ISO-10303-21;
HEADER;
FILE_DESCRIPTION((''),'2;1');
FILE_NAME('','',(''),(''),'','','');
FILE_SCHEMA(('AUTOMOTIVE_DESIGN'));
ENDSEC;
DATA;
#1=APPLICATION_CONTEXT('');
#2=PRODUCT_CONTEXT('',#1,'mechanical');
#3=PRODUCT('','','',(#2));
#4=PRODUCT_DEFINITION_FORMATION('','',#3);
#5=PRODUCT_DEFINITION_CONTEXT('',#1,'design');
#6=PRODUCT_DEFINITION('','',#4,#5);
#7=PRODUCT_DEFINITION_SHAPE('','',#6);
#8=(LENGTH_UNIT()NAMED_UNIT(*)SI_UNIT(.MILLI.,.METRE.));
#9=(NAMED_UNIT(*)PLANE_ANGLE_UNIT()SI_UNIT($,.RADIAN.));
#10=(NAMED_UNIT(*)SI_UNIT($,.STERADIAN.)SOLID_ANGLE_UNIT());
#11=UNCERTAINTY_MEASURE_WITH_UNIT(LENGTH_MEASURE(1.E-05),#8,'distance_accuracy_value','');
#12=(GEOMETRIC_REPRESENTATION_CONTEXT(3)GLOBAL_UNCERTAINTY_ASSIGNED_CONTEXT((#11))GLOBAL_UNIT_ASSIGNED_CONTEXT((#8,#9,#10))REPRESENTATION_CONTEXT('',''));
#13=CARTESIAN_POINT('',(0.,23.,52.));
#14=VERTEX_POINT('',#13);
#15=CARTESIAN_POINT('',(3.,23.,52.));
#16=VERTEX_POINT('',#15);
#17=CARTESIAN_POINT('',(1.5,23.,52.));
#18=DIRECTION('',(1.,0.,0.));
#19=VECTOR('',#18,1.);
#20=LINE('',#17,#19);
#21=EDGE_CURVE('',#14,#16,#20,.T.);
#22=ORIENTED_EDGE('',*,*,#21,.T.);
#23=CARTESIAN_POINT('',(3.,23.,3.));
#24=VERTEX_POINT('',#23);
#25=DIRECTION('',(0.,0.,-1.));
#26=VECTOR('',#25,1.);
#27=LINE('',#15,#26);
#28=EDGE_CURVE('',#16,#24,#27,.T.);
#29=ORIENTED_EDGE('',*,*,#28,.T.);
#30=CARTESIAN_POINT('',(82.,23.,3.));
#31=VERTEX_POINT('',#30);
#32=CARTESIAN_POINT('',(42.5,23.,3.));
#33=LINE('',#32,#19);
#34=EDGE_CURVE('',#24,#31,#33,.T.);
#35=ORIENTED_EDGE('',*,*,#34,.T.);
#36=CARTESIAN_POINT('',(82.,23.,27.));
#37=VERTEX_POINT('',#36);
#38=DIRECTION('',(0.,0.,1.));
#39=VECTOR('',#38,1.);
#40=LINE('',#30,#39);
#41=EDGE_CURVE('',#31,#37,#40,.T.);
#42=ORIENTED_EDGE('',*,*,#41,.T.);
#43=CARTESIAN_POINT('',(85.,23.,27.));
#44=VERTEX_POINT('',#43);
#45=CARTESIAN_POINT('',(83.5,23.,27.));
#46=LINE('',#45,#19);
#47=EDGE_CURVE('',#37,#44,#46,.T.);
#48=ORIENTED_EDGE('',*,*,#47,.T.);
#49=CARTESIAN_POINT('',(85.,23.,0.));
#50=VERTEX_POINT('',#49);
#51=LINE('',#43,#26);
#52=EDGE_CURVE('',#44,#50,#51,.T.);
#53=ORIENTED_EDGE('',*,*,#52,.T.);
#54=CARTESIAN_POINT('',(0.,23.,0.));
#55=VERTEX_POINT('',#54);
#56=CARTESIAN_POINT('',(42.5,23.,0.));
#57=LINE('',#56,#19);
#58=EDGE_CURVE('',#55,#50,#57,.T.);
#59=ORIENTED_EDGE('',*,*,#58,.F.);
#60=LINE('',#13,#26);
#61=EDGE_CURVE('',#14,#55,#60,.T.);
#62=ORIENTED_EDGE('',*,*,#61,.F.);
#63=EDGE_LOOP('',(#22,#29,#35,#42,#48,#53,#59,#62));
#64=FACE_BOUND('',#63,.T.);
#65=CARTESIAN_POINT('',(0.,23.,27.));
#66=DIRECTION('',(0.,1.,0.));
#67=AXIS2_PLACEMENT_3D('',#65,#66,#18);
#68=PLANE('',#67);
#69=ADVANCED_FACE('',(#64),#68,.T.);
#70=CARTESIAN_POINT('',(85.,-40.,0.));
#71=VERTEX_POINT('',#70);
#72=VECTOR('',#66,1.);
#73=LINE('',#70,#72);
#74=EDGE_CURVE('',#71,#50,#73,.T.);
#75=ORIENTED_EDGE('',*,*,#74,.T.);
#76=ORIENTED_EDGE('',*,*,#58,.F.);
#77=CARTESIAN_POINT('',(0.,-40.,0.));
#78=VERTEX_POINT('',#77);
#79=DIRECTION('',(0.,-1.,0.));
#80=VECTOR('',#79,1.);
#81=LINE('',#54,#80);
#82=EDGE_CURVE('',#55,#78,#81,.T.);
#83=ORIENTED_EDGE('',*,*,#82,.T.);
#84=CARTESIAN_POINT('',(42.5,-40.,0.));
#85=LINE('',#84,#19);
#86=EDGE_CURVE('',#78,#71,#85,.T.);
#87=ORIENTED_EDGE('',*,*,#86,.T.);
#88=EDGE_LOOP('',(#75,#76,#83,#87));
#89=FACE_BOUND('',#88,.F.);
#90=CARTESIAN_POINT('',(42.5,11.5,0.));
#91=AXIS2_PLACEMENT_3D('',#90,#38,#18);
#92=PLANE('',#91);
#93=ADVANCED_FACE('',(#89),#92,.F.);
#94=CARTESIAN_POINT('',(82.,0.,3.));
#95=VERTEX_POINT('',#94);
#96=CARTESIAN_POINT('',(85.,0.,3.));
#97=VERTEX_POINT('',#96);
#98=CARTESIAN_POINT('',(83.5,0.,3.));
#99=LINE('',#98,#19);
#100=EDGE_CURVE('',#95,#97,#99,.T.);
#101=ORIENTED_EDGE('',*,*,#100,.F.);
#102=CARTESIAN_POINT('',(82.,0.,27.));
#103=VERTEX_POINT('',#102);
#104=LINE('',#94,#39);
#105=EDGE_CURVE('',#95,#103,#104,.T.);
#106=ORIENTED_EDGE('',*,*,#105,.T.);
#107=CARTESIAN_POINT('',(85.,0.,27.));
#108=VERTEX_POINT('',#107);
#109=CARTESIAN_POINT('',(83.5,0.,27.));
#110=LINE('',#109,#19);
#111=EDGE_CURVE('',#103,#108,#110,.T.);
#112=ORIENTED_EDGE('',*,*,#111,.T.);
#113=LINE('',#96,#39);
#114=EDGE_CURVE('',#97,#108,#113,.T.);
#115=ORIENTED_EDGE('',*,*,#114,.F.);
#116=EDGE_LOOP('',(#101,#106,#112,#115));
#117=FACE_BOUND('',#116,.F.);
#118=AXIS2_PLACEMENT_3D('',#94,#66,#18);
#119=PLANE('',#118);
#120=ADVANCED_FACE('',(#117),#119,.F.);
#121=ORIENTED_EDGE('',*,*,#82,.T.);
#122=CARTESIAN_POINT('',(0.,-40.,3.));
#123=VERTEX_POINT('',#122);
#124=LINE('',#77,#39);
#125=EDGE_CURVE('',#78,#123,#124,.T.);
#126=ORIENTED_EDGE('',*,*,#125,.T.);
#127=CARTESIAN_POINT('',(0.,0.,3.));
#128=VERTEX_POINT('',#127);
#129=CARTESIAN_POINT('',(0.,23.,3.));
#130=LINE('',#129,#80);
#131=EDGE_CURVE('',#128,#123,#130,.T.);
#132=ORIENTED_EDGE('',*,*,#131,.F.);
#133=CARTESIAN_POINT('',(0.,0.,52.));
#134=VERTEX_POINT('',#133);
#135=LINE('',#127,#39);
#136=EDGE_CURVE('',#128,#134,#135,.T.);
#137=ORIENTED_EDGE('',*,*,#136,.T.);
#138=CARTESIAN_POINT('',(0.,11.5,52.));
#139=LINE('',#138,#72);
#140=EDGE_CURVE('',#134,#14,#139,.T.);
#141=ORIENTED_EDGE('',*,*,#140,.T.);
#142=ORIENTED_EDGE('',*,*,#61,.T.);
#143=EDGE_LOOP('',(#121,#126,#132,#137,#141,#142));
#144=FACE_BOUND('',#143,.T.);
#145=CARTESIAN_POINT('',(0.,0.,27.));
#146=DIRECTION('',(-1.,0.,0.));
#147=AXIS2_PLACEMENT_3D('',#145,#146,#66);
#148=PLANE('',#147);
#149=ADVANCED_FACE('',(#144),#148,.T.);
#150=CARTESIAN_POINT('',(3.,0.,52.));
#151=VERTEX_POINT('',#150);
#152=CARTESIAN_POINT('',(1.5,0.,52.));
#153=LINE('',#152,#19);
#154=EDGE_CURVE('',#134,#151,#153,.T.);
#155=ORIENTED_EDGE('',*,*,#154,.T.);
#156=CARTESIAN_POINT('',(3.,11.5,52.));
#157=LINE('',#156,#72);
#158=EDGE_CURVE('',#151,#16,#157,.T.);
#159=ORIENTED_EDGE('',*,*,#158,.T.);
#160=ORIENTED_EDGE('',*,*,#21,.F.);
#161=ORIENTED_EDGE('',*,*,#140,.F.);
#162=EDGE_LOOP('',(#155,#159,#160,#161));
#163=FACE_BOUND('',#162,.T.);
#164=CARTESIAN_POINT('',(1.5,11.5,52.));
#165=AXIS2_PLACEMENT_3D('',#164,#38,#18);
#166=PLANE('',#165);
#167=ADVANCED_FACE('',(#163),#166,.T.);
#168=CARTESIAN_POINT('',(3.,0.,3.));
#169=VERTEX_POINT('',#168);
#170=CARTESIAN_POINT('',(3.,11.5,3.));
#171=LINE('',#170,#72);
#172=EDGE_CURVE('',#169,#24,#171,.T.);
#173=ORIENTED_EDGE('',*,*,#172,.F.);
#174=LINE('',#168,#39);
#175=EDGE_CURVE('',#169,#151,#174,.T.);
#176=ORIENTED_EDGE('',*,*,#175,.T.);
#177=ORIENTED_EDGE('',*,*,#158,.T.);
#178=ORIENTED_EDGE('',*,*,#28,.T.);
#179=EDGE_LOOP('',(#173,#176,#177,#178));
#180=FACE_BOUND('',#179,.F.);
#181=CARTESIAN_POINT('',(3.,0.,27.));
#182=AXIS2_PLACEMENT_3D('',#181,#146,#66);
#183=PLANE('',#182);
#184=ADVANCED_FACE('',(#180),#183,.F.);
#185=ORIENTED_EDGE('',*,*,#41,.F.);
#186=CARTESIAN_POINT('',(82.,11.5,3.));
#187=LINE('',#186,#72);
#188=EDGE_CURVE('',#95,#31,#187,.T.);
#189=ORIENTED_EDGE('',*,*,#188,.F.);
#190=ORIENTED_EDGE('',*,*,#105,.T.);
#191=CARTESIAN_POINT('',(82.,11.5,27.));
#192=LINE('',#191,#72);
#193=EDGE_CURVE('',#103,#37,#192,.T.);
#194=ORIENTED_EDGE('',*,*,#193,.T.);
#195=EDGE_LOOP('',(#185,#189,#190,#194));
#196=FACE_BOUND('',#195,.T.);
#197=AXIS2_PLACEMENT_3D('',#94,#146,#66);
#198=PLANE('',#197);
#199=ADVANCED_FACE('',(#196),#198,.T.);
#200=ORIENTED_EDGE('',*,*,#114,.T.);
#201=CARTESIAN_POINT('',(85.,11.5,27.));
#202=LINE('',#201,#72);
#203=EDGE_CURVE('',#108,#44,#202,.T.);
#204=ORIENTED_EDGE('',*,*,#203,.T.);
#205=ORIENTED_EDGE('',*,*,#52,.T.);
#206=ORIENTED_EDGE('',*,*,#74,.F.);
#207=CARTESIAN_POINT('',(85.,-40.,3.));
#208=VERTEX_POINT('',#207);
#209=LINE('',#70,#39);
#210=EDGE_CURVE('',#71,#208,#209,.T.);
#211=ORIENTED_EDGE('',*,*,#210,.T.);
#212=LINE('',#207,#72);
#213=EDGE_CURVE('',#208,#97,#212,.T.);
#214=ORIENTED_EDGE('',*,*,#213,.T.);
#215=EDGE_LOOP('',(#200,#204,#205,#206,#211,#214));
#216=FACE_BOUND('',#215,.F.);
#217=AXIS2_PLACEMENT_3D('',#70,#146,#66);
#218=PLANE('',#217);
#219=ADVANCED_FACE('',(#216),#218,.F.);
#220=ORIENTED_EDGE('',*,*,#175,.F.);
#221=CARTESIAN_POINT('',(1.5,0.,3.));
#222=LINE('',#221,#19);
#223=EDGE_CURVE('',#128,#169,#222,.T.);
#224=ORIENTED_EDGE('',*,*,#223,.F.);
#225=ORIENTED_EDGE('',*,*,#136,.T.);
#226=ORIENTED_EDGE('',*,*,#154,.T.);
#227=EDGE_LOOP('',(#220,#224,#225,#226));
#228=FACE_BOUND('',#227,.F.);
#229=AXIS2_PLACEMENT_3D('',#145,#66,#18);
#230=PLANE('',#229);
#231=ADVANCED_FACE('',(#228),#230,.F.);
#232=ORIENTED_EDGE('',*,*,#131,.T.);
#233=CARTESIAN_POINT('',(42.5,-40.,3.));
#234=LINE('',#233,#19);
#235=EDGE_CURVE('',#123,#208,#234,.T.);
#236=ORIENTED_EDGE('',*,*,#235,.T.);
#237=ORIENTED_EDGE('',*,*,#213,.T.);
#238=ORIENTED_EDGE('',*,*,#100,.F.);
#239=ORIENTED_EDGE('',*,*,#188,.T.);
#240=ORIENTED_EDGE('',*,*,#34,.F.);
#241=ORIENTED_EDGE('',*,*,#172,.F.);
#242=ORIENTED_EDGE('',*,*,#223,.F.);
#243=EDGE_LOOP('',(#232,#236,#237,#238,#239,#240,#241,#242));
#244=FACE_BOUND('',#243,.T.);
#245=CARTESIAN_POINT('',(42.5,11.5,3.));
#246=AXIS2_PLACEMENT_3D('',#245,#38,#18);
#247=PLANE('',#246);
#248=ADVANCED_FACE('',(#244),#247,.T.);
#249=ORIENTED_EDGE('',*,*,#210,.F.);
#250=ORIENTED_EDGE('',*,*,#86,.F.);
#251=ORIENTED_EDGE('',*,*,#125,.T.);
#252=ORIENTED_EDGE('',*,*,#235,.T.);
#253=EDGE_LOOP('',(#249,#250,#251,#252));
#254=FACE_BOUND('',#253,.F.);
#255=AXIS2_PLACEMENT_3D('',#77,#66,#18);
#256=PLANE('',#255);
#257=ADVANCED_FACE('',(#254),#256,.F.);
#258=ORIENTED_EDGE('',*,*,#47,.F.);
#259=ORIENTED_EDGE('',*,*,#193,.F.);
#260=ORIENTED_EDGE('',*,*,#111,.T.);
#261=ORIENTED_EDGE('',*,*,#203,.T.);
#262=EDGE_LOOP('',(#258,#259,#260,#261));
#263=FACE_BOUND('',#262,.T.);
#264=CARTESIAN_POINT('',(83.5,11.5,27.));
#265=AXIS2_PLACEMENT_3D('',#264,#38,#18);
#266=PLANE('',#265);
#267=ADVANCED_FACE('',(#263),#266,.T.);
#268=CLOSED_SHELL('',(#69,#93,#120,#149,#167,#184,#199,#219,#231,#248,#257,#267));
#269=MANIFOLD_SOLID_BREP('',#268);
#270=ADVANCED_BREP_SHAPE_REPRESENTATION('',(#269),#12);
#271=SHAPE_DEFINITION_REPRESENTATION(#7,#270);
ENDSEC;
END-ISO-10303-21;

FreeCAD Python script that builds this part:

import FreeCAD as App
import Part
import Sketcher

V = App.Vector
Q = App.Units.Quantity

doc = App.newDocument("Part")
body = doc.addObject("PartDesign::Body", "Body")

# Sketch on XY plane
sketch1 = body.newObject("Sketcher::SketchObject", "Sketch")
sketch1.AttachmentSupport = (doc.getObject("XY_Plane"), [""])
sketch1.MapMode = "FlatFace"
sketch1.addGeometry([
    Part.LineSegment(V(0, 23, 0), V(0, -40, 0)),
    Part.LineSegment(V(0, -40, 0), V(85, -40, 0)),
    Part.LineSegment(V(85, -40, 0), V(85, 23, 0)),
    Part.LineSegment(V(85, 23, 0), V(0, 23, 0)),
], False)
sketch1.addConstraint([
    Sketcher.Constraint("Coincident", 0, 2, 1, 1),
    Sketcher.Constraint("Coincident", 1, 2, 2, 1),
    Sketcher.Constraint("Coincident", 2, 2, 3, 1),
    Sketcher.Constraint("Coincident", 3, 2, 0, 1),
    Sketcher.Constraint("Vertical", 0),
    Sketcher.Constraint("Horizontal", 1),
    Sketcher.Constraint("Vertical", 2),
    Sketcher.Constraint("Horizontal", 3),
    Sketcher.Constraint("PointOnObject", 0, 2, -2),
    Sketcher.Constraint("DistanceX", 1, 1, 1, 2, Q("85 mm")),
    Sketcher.Constraint("DistanceY", 0, 2, 0, 1, Q("63 mm")),
    Sketcher.Constraint("DistanceY", 0, 2, -1, 1, Q("40 mm")),
])
pad1 = body.newObject("PartDesign::Pad", "Pad")
pad1.Profile = sketch1
pad1.Length = 3

# Sketch on XY plane
sketch2 = body.newObject("Sketcher::SketchObject", "Sketch001")
sketch2.AttachmentSupport = (doc.getObject("XY_Plane"), [""])
sketch2.MapMode = "FlatFace"
sketch2.AttachmentOffset = App.Placement(V(0, 0, 3), App.Rotation())
sketch2.addGeometry([
    Part.LineSegment(V(0, 23, 0), V(0, 0, 0)),  # 0
    Part.LineSegment(V(0, 0, 0), V(3, 0, 0)),  # 1
    Part.LineSegment(V(3, 0, 0), V(3, 23, 0)),  # 2
    Part.LineSegment(V(3, 23, 0), V(0, 23, 0)),  # 3
    Part.LineSegment(V(82, 23, 0), V(82, 0, 0)),  # 4
    Part.LineSegment(V(82, 0, 0), V(85, 0, 0)),  # 5
    Part.LineSegment(V(85, 0, 0), V(85, 23, 0)),  # 6
    Part.LineSegment(V(85, 23, 0), V(82, 23, 0)),  # 7
], False)
sketch2.addConstraint([
    Sketcher.Constraint("Coincident", 0, 2, 1, 1),
    Sketcher.Constraint("Coincident", 1, 2, 2, 1),
    Sketcher.Constraint("Coincident", 2, 2, 3, 1),
    Sketcher.Constraint("Coincident", 3, 2, 0, 1),
    Sketcher.Constraint("Coincident", 4, 2, 5, 1),
    Sketcher.Constraint("Coincident", 5, 2, 6, 1),
    Sketcher.Constraint("Coincident", 6, 2, 7, 1),
    Sketcher.Constraint("Coincident", 7, 2, 4, 1),
    Sketcher.Constraint("Vertical", 0),
    Sketcher.Constraint("Horizontal", 1),
    Sketcher.Constraint("Vertical", 2),
    Sketcher.Constraint("Horizontal", 3),
    Sketcher.Constraint("Vertical", 4),
    Sketcher.Constraint("Horizontal", 5),
    Sketcher.Constraint("Vertical", 6),
    Sketcher.Constraint("Horizontal", 7),
    Sketcher.Constraint("Coincident", 0, 2, -1, 1),
    Sketcher.Constraint("PointOnObject", 4, 2, -1),
    Sketcher.Constraint("Horizontal", 3, 2, 6, 2),
    Sketcher.Constraint("Equal", 3, 5),
    Sketcher.Constraint("DistanceX", 1, 1, 1, 2, Q("3 mm")),
    Sketcher.Constraint("DistanceY", 0, 2, 0, 1, Q("23 mm")),
    Sketcher.Constraint("DistanceX", -1, 1, 4, 2, Q("82 mm")),
])
pad2 = body.newObject("PartDesign::Pad", "Pad001")
pad2.Profile = sketch2
pad2.Length = 24

# Sketch on XY plane
sketch3 = body.newObject("Sketcher::SketchObject", "Sketch002")
sketch3.AttachmentSupport = (doc.getObject("XY_Plane"), [""])
sketch3.MapMode = "FlatFace"
sketch3.AttachmentOffset = App.Placement(V(0, 0, 27), App.Rotation())
sketch3.addGeometry([
    Part.LineSegment(V(0, 23, 0), V(0, 0, 0)),
    Part.LineSegment(V(0, 0, 0), V(3, 0, 0)),
    Part.LineSegment(V(3, 0, 0), V(3, 23, 0)),
    Part.LineSegment(V(3, 23, 0), V(0, 23, 0)),
], False)
sketch3.addConstraint([
    Sketcher.Constraint("Coincident", 0, 2, 1, 1),
    Sketcher.Constraint("Coincident", 1, 2, 2, 1),
    Sketcher.Constraint("Coincident", 2, 2, 3, 1),
    Sketcher.Constraint("Coincident", 3, 2, 0, 1),
    Sketcher.Constraint("Vertical", 0),
    Sketcher.Constraint("Horizontal", 1),
    Sketcher.Constraint("Vertical", 2),
    Sketcher.Constraint("Horizontal", 3),
    Sketcher.Constraint("Coincident", 0, 2, -1, 1),
    Sketcher.Constraint("DistanceX", 1, 1, 1, 2, Q("3 mm")),
    Sketcher.Constraint("DistanceY", 0, 2, 0, 1, Q("23 mm")),
])
pad3 = body.newObject("PartDesign::Pad", "Pad002")
pad3.Profile = sketch3
pad3.Length = 25

doc.recompute()
